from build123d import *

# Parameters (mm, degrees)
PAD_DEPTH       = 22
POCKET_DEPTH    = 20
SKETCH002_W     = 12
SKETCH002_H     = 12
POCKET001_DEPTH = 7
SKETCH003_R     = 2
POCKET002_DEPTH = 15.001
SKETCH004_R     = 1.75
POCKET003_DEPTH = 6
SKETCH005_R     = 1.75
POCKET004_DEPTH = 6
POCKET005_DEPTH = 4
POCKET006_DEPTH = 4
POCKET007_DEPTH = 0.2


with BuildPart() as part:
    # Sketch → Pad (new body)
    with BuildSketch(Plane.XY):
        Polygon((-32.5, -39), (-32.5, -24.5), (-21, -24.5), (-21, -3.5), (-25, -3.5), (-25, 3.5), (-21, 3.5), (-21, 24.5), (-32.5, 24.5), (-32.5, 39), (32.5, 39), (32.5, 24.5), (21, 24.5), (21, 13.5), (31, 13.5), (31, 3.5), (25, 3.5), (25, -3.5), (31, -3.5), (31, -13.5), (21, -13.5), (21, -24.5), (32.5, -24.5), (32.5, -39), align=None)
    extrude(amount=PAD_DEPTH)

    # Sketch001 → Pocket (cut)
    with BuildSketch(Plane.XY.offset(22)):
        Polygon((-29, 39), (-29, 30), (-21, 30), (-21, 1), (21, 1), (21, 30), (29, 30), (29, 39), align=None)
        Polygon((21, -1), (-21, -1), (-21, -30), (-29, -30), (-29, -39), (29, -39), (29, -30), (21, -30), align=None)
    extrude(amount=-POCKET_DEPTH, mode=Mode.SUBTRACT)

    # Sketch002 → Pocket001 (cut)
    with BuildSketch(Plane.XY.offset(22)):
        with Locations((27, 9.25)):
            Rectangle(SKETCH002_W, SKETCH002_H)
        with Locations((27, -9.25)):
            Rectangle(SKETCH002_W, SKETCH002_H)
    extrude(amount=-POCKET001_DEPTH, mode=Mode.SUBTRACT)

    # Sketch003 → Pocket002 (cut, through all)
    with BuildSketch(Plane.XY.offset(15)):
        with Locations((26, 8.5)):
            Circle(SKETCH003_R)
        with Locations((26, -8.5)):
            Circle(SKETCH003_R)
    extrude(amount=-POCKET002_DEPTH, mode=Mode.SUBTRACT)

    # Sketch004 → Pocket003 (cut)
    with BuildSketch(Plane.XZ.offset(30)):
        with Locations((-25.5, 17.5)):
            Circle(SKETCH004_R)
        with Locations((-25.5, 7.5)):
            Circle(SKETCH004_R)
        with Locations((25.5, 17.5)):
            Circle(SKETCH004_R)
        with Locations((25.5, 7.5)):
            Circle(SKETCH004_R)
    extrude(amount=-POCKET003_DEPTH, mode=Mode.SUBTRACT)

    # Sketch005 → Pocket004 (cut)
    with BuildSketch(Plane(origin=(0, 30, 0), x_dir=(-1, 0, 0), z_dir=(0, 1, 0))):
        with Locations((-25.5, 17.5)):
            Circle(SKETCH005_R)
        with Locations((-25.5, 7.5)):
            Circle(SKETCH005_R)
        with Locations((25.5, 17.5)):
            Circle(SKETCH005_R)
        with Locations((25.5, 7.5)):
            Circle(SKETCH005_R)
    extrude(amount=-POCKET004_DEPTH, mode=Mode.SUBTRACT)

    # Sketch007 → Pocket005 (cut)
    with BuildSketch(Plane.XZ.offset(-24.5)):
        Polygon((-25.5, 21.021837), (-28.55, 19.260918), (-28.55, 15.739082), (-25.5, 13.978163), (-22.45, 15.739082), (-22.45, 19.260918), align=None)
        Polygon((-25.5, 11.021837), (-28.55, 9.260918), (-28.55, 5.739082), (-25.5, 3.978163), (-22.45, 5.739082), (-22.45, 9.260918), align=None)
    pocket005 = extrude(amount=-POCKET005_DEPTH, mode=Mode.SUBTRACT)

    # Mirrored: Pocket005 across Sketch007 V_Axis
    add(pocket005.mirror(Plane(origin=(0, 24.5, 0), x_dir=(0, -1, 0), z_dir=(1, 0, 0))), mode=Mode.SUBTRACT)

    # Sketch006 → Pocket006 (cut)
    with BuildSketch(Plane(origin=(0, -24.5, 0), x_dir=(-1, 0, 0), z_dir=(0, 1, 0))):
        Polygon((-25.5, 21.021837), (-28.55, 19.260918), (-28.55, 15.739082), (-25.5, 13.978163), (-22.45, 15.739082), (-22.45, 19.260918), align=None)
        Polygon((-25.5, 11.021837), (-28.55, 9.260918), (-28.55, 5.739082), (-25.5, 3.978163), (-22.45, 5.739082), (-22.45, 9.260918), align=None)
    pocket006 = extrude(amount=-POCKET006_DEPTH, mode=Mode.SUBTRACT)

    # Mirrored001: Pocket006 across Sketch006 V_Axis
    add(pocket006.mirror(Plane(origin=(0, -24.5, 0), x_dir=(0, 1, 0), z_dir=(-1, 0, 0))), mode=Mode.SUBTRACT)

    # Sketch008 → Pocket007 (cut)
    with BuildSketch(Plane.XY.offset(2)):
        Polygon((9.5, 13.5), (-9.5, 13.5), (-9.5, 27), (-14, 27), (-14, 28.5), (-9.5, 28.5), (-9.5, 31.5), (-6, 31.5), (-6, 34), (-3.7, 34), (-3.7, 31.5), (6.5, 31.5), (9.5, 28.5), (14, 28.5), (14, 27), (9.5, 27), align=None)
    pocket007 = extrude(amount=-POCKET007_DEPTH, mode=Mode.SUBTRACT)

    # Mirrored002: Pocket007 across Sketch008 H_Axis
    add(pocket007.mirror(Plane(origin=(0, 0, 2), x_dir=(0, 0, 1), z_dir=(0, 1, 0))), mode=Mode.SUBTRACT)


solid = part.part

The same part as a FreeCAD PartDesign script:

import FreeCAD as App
import Part
import Sketcher

V = App.Vector
Q = App.Units.Quantity

doc = App.newDocument("Part")
body = doc.addObject("PartDesign::Body", "Body")

sketch1 = body.newObject("Sketcher::SketchObject", "Sketch")
sketch1.AttachmentSupport = (doc.getObject("XY_Plane"), [""])
sketch1.MapMode = "FlatFace"
sketch1.addGeometry([
    Part.LineSegment(V(-32.5, -24.5, 0), V(-32.5, -39, 0)),
    Part.LineSegment(V(-32.5, -39, 0), V(32.5, -39, 0)),
    Part.LineSegment(V(32.5, -39, 0), V(32.5, -24.5, 0)),
    Part.LineSegment(V(32.5, -24.5, 0), V(21, -24.5, 0)),
    Part.LineSegment(V(21, -24.5, 0), V(21, -13.5, 0)),
    Part.LineSegment(V(21, -13.5, 0), V(31, -13.5, 0)),
    Part.LineSegment(V(31, -13.5, 0), V(31, -3.5, 0)),
    Part.LineSegment(V(31, -3.5, 0), V(25, -3.5, 0)),
    Part.LineSegment(V(25, -3.5, 0), V(25, 3.5, 0)),
    Part.LineSegment(V(25, 3.5, 0), V(31, 3.5, 0)),
    Part.LineSegment(V(31, 3.5, 0), V(31, 13.5, 0)),
    Part.LineSegment(V(31, 13.5, 0), V(21, 13.5, 0)),
    Part.LineSegment(V(21, 13.5, 0), V(21, 24.5, 0)),
    Part.LineSegment(V(21, 24.5, 0), V(32.5, 24.5, 0)),
    Part.LineSegment(V(32.5, 24.5, 0), V(32.5, 39, 0)),
    Part.LineSegment(V(32.5, 39, 0), V(-32.5, 39, 0)),
    Part.LineSegment(V(-32.5, 39, 0), V(-32.5, 24.5, 0)),
    Part.LineSegment(V(-32.5, 24.5, 0), V(-21, 24.5, 0)),
    Part.LineSegment(V(-21, 24.5, 0), V(-21, 3.5, 0)),
    Part.LineSegment(V(-21, 3.5, 0), V(-25, 3.5, 0)),
    Part.LineSegment(V(-25, 3.5, 0), V(-25, -3.5, 0)),
    Part.LineSegment(V(-25, -3.5, 0), V(-21, -3.5, 0)),
    Part.LineSegment(V(-21, -3.5, 0), V(-21, -24.5, 0)),
    Part.LineSegment(V(-21, -24.5, 0), V(-32.5, -24.5, 0)),
], False)
sketch1.addConstraint([
    Sketcher.Constraint("Coincident", 0, 2, 1, 1),
    Sketcher.Constraint("Coincident", 1, 2, 2, 1),
    Sketcher.Constraint("Coincident", 2, 2, 3, 1),
    Sketcher.Constraint("Coincident", 3, 2, 4, 1),
    Sketcher.Constraint("Coincident", 4, 2, 5, 1),
    Sketcher.Constraint("Coincident", 5, 2, 6, 1),
    Sketcher.Constraint("Coincident", 6, 2, 7, 1),
    Sketcher.Constraint("Coincident", 7, 2, 8, 1),
    Sketcher.Constraint("Coincident", 8, 2, 9, 1),
    Sketcher.Constraint("Coincident", 9, 2, 10, 1),
    Sketcher.Constraint("Coincident", 10, 2, 11, 1),
    Sketcher.Constraint("Coincident", 11, 2, 12, 1),
    Sketcher.Constraint("Coincident", 12, 2, 13, 1),
    Sketcher.Constraint("Coincident", 13, 2, 14, 1),
    Sketcher.Constraint("Coincident", 14, 2, 15, 1),
    Sketcher.Constraint("Coincident", 15, 2, 16, 1),
    Sketcher.Constraint("Coincident", 16, 2, 17, 1),
    Sketcher.Constraint("Coincident", 17, 2, 18, 1),
    Sketcher.Constraint("Coincident", 18, 2, 19, 1),
    Sketcher.Constraint("Coincident", 19, 2, 20, 1),
    Sketcher.Constraint("Coincident", 20, 2, 21, 1),
    Sketcher.Constraint("Coincident", 21, 2, 22, 1),
    Sketcher.Constraint("Coincident", 22, 2, 23, 1),
    Sketcher.Constraint("Coincident", 23, 2, 0, 1),
    Sketcher.Constraint("Vertical", 0),
    Sketcher.Constraint("Horizontal", 1),
    Sketcher.Constraint("Vertical", 2),
    Sketcher.Constraint("Horizontal", 3),
    Sketcher.Constraint("Vertical", 4),
    Sketcher.Constraint("Horizontal", 5),
    Sketcher.Constraint("Vertical", 6),
    Sketcher.Constraint("Horizontal", 7),
    Sketcher.Constraint("Vertical", 8),
    Sketcher.Constraint("Horizontal", 9),
    Sketcher.Constraint("Vertical", 10),
    Sketcher.Constraint("Horizontal", 11),
    Sketcher.Constraint("Vertical", 12),
    Sketcher.Constraint("Horizontal", 13),
    Sketcher.Constraint("Vertical", 14),
    Sketcher.Constraint("Horizontal", 15),
    Sketcher.Constraint("Vertical", 16),
    Sketcher.Constraint("Horizontal", 17),
    Sketcher.Constraint("Vertical", 18),
    Sketcher.Constraint("Horizontal", 19),
    Sketcher.Constraint("Vertical", 20),
    Sketcher.Constraint("Horizontal", 21),
    Sketcher.Constraint("Vertical", 22),
    Sketcher.Constraint("Horizontal", 23),
    Sketcher.Constraint("Symmetric", 0, 2, 14, 2, -1, 1),
    Sketcher.Constraint("Symmetric", 2, 2, 16, 2, -1, 1),
    Sketcher.Constraint("Symmetric", 7, 2, 19, 2, -1, 1),
    Sketcher.Constraint("Symmetric", 12, 2, 22, 2, -1, 1),
    Sketcher.Constraint("Symmetric", 13, 2, 16, 2, -2),
    Sketcher.Constraint("Symmetric", 6, 2, 9, 2, -1),
    Sketcher.Constraint("Symmetric", 4, 2, 11, 2, -1),
    Sketcher.Constraint("Symmetric", 18, 2, 21, 2, -1),
    Sketcher.Constraint("Equal", 11, 6),
    Sketcher.Constraint("DistanceX", 1, 1, 1, 2, Q("65 mm")),
    Sketcher.Constraint("DistanceX", 5, 1, 5, 2, Q("10 mm")),
    Sketcher.Constraint("DistanceX", 7, 2, 7, 1, Q("6 mm")),
    Sketcher.Constraint("DistanceY", 4, 1, 4, 2, Q("11 mm")),
    Sketcher.Constraint("DistanceY", 8, 1, 8, 2, Q("7 mm")),
    Sketcher.Constraint("DistanceX", 3, 2, 3, 1, Q("11.5 mm")),
    Sketcher.Constraint("DistanceY", 0, 2, 0, 1, Q("14.5 mm")),
])
pad1 = body.newObject("PartDesign::Pad", "Pad")
pad1.Profile = sketch1
pad1.Length = 22

sketch2 = body.newObject("Sketcher::SketchObject", "Sketch001")
sketch2.AttachmentSupport = (doc.getObject("XY_Plane"), [""])
sketch2.MapMode = "FlatFace"
sketch2.AttachmentOffset = App.Placement(V(0, 0, 22), App.Rotation())
sketch2.addGeometry([
    Part.LineSegment(V(-29, 39, 0), V(-29, 30, 0)),
    Part.LineSegment(V(-29, 30, 0), V(-21, 30, 0)),
    Part.LineSegment(V(-21, 30, 0), V(-21, 1, 0)),
    Part.LineSegment(V(-21, 1, 0), V(21, 1, 0)),
    Part.LineSegment(V(21, 1, 0), V(21, 30, 0)),
    Part.LineSegment(V(21, 30, 0), V(29, 30, 0)),
    Part.LineSegment(V(29, 30, 0), V(29, 39, 0)),
    Part.LineSegment(V(29, 39, 0), V(-29, 39, 0)),
    Part.LineSegment(V(21, -1, 0), V(-21, -1, 0)),
    Part.LineSegment(V(-21, -1, 0), V(-21, -30, 0)),
    Part.LineSegment(V(-21, -30, 0), V(-29, -30, 0)),
    Part.LineSegment(V(-29, -30, 0), V(-29, -39, 0)),
    Part.LineSegment(V(-29, -39, 0), V(29, -39, 0)),
    Part.LineSegment(V(29, -39, 0), V(29, -30, 0)),
    Part.LineSegment(V(29, -30, 0), V(21, -30, 0)),
    Part.LineSegment(V(21, -30, 0), V(21, -1, 0)),
], False)
sketch2.addConstraint([
    Sketcher.Constraint("Coincident", 0, 2, 1, 1),
    Sketcher.Constraint("Coincident", 1, 2, 2, 1),
    Sketcher.Constraint("Coincident", 2, 2, 3, 1),
    Sketcher.Constraint("Coincident", 3, 2, 4, 1),
    Sketcher.Constraint("Coincident", 4, 2, 5, 1),
    Sketcher.Constraint("Coincident", 5, 2, 6, 1),
    Sketcher.Constraint("Coincident", 6, 2, 7, 1),
    Sketcher.Constraint("Coincident", 7, 2, 0, 1),
    Sketcher.Constraint("Coincident", 8, 2, 9, 1),
    Sketcher.Constraint("Coincident", 9, 2, 10, 1),
    Sketcher.Constraint("Coincident", 10, 2, 11, 1),
    Sketcher.Constraint("Coincident", 11, 2, 12, 1),
    Sketcher.Constraint("Coincident", 12, 2, 13, 1),
    Sketcher.Constraint("Coincident", 13, 2, 14, 1),
    Sketcher.Constraint("Coincident", 14, 2, 15, 1),
    Sketcher.Constraint("Coincident", 15, 2, 8, 1),
    Sketcher.Constraint("Vertical", 0),
    Sketcher.Constraint("Horizontal", 1),
    Sketcher.Constraint("Vertical", 2),
    Sketcher.Constraint("Horizontal", 3),
    Sketcher.Constraint("Vertical", 4),
    Sketcher.Constraint("Horizontal", 5),
    Sketcher.Constraint("Vertical", 6),
    Sketcher.Constraint("Horizontal", 7),
    Sketcher.Constraint("Horizontal", 8),
    Sketcher.Constraint("Vertical", 9),
    Sketcher.Constraint("Horizontal", 10),
    Sketcher.Constraint("Vertical", 11),
    Sketcher.Constraint("Horizontal", 12),
    Sketcher.Constraint("Vertical", 13),
    Sketcher.Constraint("Horizontal", 14),
    Sketcher.Constraint("Vertical", 15),
    Sketcher.Constraint("Symmetric", 3, 2, 8, 2, -1, 1),
    Sketcher.Constraint("Symmetric", 5, 2, 10, 2, -1, 1),
    Sketcher.Constraint("Symmetric", 7, 2, 12, 2, -1, 1),
    Sketcher.Constraint("Symmetric", 1, 2, 14, 2, -1, 1),
    Sketcher.Constraint("Symmetric", 1, 2, 4, 2, -2),
    Sketcher.Constraint("Vertical", 7, 2, 10, 2),
    Sketcher.Constraint("DistanceX", 1, 1, 1, 2, Q("8 mm")),
    Sketcher.Constraint("DistanceX", 3, 1, 3, 2, Q("42 mm")),
    Sketcher.Constraint("DistanceY", 0, 2, 0, 1, Q("9 mm")),
    Sketcher.Constraint("DistanceY", 2, 2, 2, 1, Q("29 mm")),
    Sketcher.Constraint("DistanceY", -1, 1, 0, 2, Q("30 mm")),
])
pocket1 = body.newObject("PartDesign::Pocket", "Pocket")
pocket1.Profile = sketch2
pocket1.Length = 20

sketch3 = body.newObject("Sketcher::SketchObject", "Sketch002")
sketch3.AttachmentSupport = (doc.getObject("XY_Plane"), [""])
sketch3.MapMode = "FlatFace"
sketch3.AttachmentOffset = App.Placement(V(0, 0, 22), App.Rotation())
sketch3.addGeometry([
    Part.LineSegment(V(21, 15, 0), V(21, 3, 0)),
    Part.LineSegment(V(21, 3, 0), V(33, 3, 0)),
    Part.LineSegment(V(33, 3, 0), V(33, 15, 0)),
    Part.LineSegment(V(33, 15, 0), V(21, 15, 0)),
    Part.LineSegment(V(21, -3, 0), V(21, -15, 0)),
    Part.LineSegment(V(21, -15, 0), V(33, -15, 0)),
    Part.LineSegment(V(33, -15, 0), V(33, -3, 0)),
    Part.LineSegment(V(33, -3, 0), V(21, -3, 0)),
], False)
sketch3.addConstraint([
    Sketcher.Constraint("Coincident", 0, 2, 1, 1),
    Sketcher.Constraint("Coincident", 1, 2, 2, 1),
    Sketcher.Constraint("Coincident", 2, 2, 3, 1),
    Sketcher.Constraint("Coincident", 3, 2, 0, 1),
    Sketcher.Constraint("Coincident", 4, 2, 5, 1),
    Sketcher.Constraint("Coincident", 5, 2, 6, 1),
    Sketcher.Constraint("Coincident", 6, 2, 7, 1),
    Sketcher.Constraint("Coincident", 7, 2, 4, 1),
    Sketcher.Constraint("Vertical", 0),
    Sketcher.Constraint("Horizontal", 1),
    Sketcher.Constraint("Vertical", 2),
    Sketcher.Constraint("Horizontal", 3),
    Sketcher.Constraint("Vertical", 4),
    Sketcher.Constraint("Horizontal", 5),
    Sketcher.Constraint("Vertical", 6),
    Sketcher.Constraint("Horizontal", 7),
    Sketcher.Constraint("Symmetric", 3, 2, 4, 2, -1),
    Sketcher.Constraint("Symmetric", 1, 2, 6, 2, -1),
    Sketcher.Constraint("Equal", 7, 0),
    Sketcher.Constraint("DistanceX", 1, 1, 1, 2, Q("12 mm")),
    Sketcher.Constraint("DistanceX", -1, 1, 0, 2, Q("21 mm")),
    Sketcher.Constraint("DistanceY", 4, 2, 0, 2, Q("18.5 mm")),
])
pocket2 = body.newObject("PartDesign::Pocket", "Pocket001")
pocket2.Profile = sketch3
pocket2.Length = 7

sketch4 = body.newObject("Sketcher::SketchObject", "Sketch003")
sketch4.AttachmentSupport = (doc.getObject("XY_Plane"), [""])
sketch4.MapMode = "FlatFace"
sketch4.AttachmentOffset = App.Placement(V(0, 0, 15), App.Rotation())
sketch4.addGeometry([
    Part.Circle(V(26, 8.5, 0), V(0, 0, 1), 2),
    Part.Circle(V(26, -8.5, 0), V(0, 0, 1), 2),
], False)
sketch4.addConstraint([
    Sketcher.Constraint("Equal", 0, 1),
    Sketcher.Constraint("Symmetric", 0, 3, 1, 3, -1),
    Sketcher.Constraint("Diameter", 0, Q("4 mm")),
    Sketcher.Constraint("DistanceX", -1, 1, 0, 3, Q("26 mm")),
    Sketcher.Constraint("DistanceY", 1, 3, 0, 3, Q("17 mm")),
])
pocket3 = body.newObject("PartDesign::Pocket", "Pocket002")
pocket3.Profile = sketch4
pocket3.Type = "ThroughAll"

sketch5 = body.newObject("Sketcher::SketchObject", "Sketch004")
sketch5.AttachmentSupport = (doc.getObject("XZ_Plane"), [""])
sketch5.MapMode = "FlatFace"
sketch5.AttachmentOffset = App.Placement(V(0, 0, 30), App.Rotation())
sketch5.addGeometry([
    Part.Circle(V(-25.5, 17.5, 0), V(0, 0, 1), 1.8),
    Part.Circle(V(-25.5, 7.5, 0), V(0, 0, 1), 1.8),
    Part.Circle(V(25.5, 17.5, 0), V(0, 0, 1), 1.8),
    Part.Circle(V(25.5, 7.5, 0), V(0, 0, 1), 1.8),
], False)
sketch5.addConstraint([
    Sketcher.Constraint("Equal", 0, 1),
    Sketcher.Constraint("Equal", 1, 2),
    Sketcher.Constraint("Equal", 2, 3),
    Sketcher.Constraint("Symmetric", 0, 3, 2, 3, -2),
    Sketcher.Constraint("Symmetric", 1, 3, 3, 3, -2),
    Sketcher.Constraint("Vertical", 0, 3, 1, 3),
    Sketcher.Constraint("Diameter", 0, Q("3.5 mm")),
    Sketcher.Constraint("DistanceY", 1, 3, 0, 3, Q("10 mm")),
    Sketcher.Constraint("DistanceX", 0, 3, 2, 3, Q("51 mm")),
    Sketcher.Constraint("DistanceY", -1, 1, 0, 3, Q("17.5 mm")),
])
pocket4 = body.newObject("PartDesign::Pocket", "Pocket003")
pocket4.Profile = sketch5
pocket4.Length = 6

sketch6 = body.newObject("Sketcher::SketchObject", "Sketch005")
sketch6.AttachmentSupport = (doc.getObject("XZ_Plane"), [""])
sketch6.MapMode = "FlatFace"
sketch6.AttachmentOffset = App.Placement(V(0, 0, -30), App.Rotation())
sketch6.addGeometry([
    Part.Circle(V(25.5, 17.5, 0), V(0, 0, 1), 1.8),
    Part.Circle(V(25.5, 7.5, 0), V(0, 0, 1), 1.8),
    Part.Circle(V(-25.5, 17.5, 0), V(0, 0, 1), 1.8),
    Part.Circle(V(-25.5, 7.5, 0), V(0, 0, 1), 1.8),
], False)
sketch6.addConstraint([
    Sketcher.Constraint("Equal", 0, 1),
    Sketcher.Constraint("Equal", 1, 2),
    Sketcher.Constraint("Equal", 2, 3),
    Sketcher.Constraint("Symmetric", 0, 3, 2, 3, -2),
    Sketcher.Constraint("Symmetric", 1, 3, 3, 3, -2),
    Sketcher.Constraint("Vertical", 0, 3, 1, 3),
    Sketcher.Constraint("Diameter", 0, Q("3.5 mm")),
    Sketcher.Constraint("DistanceY", 1, 3, 0, 3, Q("10 mm")),
    Sketcher.Constraint("DistanceX", 2, 3, 0, 3, Q("51 mm")),
    Sketcher.Constraint("DistanceY", -1, 1, 0, 3, Q("17.5 mm")),
])
pocket5 = body.newObject("PartDesign::Pocket", "Pocket004")
pocket5.Profile = sketch6
pocket5.Length = 6
pocket5.Reversed = True

sketch7 = body.newObject("Sketcher::SketchObject", "Sketch006")
sketch7.AttachmentSupport = (doc.getObject("XZ_Plane"), [""])
sketch7.MapMode = "FlatFace"
sketch7.AttachmentOffset = App.Placement(V(0, 0, -24.5), App.Rotation())
sketch7.addGeometry([
    Part.LineSegment(V(-25.5, 21, 0), V(-28.6, 19.3, 0)),
    Part.LineSegment(V(-28.6, 19.3, 0), V(-28.6, 15.7, 0)),
    Part.LineSegment(V(-28.6, 15.7, 0), V(-25.5, 14, 0)),
    Part.LineSegment(V(-25.5, 14, 0), V(-22.4, 15.7, 0)),
    Part.LineSegment(V(-22.4, 15.7, 0), V(-22.4, 19.3, 0)),
    Part.LineSegment(V(-22.4, 19.3, 0), V(-25.5, 21, 0)),
    Part.LineSegment(V(-25.5, 11, 0), V(-28.6, 9.3, 0)),
    Part.LineSegment(V(-28.6, 9.3, 0), V(-28.6, 5.7, 0)),
    Part.LineSegment(V(-28.6, 5.7, 0), V(-25.5, 4, 0)),
    Part.LineSegment(V(-25.5, 4, 0), V(-22.4, 5.7, 0)),
    Part.LineSegment(V(-22.4, 5.7, 0), V(-22.4, 9.3, 0)),
    Part.LineSegment(V(-22.4, 9.3, 0), V(-25.5, 11, 0)),
], False)
sketch7.addConstraint([
    Sketcher.Constraint("Coincident", 0, 2, 1, 1),
    Sketcher.Constraint("Coincident", 1, 2, 2, 1),
    Sketcher.Constraint("Coincident", 2, 2, 3, 1),
    Sketcher.Constraint("Coincident", 3, 2, 4, 1),
    Sketcher.Constraint("Coincident", 4, 2, 5, 1),
    Sketcher.Constraint("Coincident", 5, 2, 0, 1),
    Sketcher.Constraint("Coincident", 6, 2, 7, 1),
    Sketcher.Constraint("Coincident", 7, 2, 8, 1),
    Sketcher.Constraint("Coincident", 8, 2, 9, 1),
    Sketcher.Constraint("Coincident", 9, 2, 10, 1),
    Sketcher.Constraint("Coincident", 10, 2, 11, 1),
    Sketcher.Constraint("Coincident", 11, 2, 6, 1),
    Sketcher.Constraint("Vertical", 1),
    Sketcher.Constraint("Vertical", 4),
    Sketcher.Constraint("Vertical", 7),
    Sketcher.Constraint("Vertical", 10),
    Sketcher.Constraint("Parallel", 0, 3),
    Sketcher.Constraint("Parallel", 2, 5),
    Sketcher.Constraint("Parallel", 3, 6),
    Sketcher.Constraint("Parallel", 5, 8),
    Sketcher.Constraint("Parallel", 6, 9),
    Sketcher.Constraint("Parallel", 8, 11),
    Sketcher.Constraint("Horizontal", 1, 2, 3, 2),
    Sketcher.Constraint("Horizontal", 0, 2, 4, 2),
    Sketcher.Constraint("Horizontal", 7, 2, 9, 2),
    Sketcher.Constraint("Horizontal", 6, 2, 10, 2),
    Sketcher.Constraint("Vertical", 2, 2, 5, 2),
    Sketcher.Constraint("Vertical", 1, 2, 6, 2),
    Sketcher.Constraint("Vertical", 5, 2, 8, 2),
    Sketcher.Constraint("Equal", 4, 7),
    Sketcher.Constraint("Angle", 0, Q("-149.99999 deg")),
    Sketcher.Constraint("DistanceY", 6, 2, 0, 2, Q("10 mm")),
    Sketcher.Constraint("DistanceX", 2, 2, -1, 1, Q("25.5 mm")),
    Sketcher.Constraint("DistanceX", 1, 2, 3, 2, Q("6.1 mm")),
    Sketcher.Constraint("DistanceY", 1, 2, 1, 1, Q("3.521836 mm")),
    Sketcher.Constraint("DistanceY", -1, 1, 0, 2, Q("19.260918 mm")),
])
pocket6 = body.newObject("PartDesign::Pocket", "Pocket005")
pocket6.Profile = sketch7
pocket6.Length = 4
doc.recompute()

mirrored = body.newObject("PartDesign::Mirrored", "Mirrored")
mirrored.Originals = [pocket6]
mirrored.MirrorPlane = (doc.getObject("YZ_Plane"), [""])
body.Tip = mirrored

sketch8 = body.newObject("Sketcher::SketchObject", "Sketch007")
sketch8.AttachmentSupport = (doc.getObject("XZ_Plane"), [""])
sketch8.MapMode = "FlatFace"
sketch8.AttachmentOffset = App.Placement(V(0, 0, 24.5), App.Rotation())
sketch8.addGeometry([
    Part.LineSegment(V(25.5, 21, 0), V(28.6, 19.3, 0)),
    Part.LineSegment(V(28.6, 19.3, 0), V(28.6, 15.7, 0)),
    Part.LineSegment(V(28.6, 15.7, 0), V(25.5, 14, 0)),
    Part.LineSegment(V(25.5, 14, 0), V(22.4, 15.7, 0)),
    Part.LineSegment(V(22.4, 15.7, 0), V(22.4, 19.3, 0)),
    Part.LineSegment(V(22.4, 19.3, 0), V(25.5, 21, 0)),
    Part.LineSegment(V(25.5, 11, 0), V(28.6, 9.3, 0)),
    Part.LineSegment(V(28.6, 9.3, 0), V(28.6, 5.7, 0)),
    Part.LineSegment(V(28.6, 5.7, 0), V(25.5, 4, 0)),
    Part.LineSegment(V(25.5, 4, 0), V(22.4, 5.7, 0)),
    Part.LineSegment(V(22.4, 5.7, 0), V(22.4, 9.3, 0)),
    Part.LineSegment(V(22.4, 9.3, 0), V(25.5, 11, 0)),
], False)
sketch8.addConstraint([
    Sketcher.Constraint("Coincident", 0, 2, 1, 1),
    Sketcher.Constraint("Coincident", 1, 2, 2, 1),
    Sketcher.Constraint("Coincident", 2, 2, 3, 1),
    Sketcher.Constraint("Coincident", 3, 2, 4, 1),
    Sketcher.Constraint("Coincident", 4, 2, 5, 1),
    Sketcher.Constraint("Coincident", 5, 2, 0, 1),
    Sketcher.Constraint("Coincident", 6, 2, 7, 1),
    Sketcher.Constraint("Coincident", 7, 2, 8, 1),
    Sketcher.Constraint("Coincident", 8, 2, 9, 1),
    Sketcher.Constraint("Coincident", 9, 2, 10, 1),
    Sketcher.Constraint("Coincident", 10, 2, 11, 1),
    Sketcher.Constraint("Coincident", 11, 2, 6, 1),
    Sketcher.Constraint("Vertical", 1),
    Sketcher.Constraint("Vertical", 4),
    Sketcher.Constraint("Vertical", 7),
    Sketcher.Constraint("Vertical", 10),
    Sketcher.Constraint("Parallel", 0, 3),
    Sketcher.Constraint("Parallel", 2, 5),
    Sketcher.Constraint("Parallel", 3, 6),
    Sketcher.Constraint("Parallel", 5, 8),
    Sketcher.Constraint("Parallel", 6, 9),
    Sketcher.Constraint("Parallel", 8, 11),
    Sketcher.Constraint("Horizontal", 1, 2, 3, 2),
    Sketcher.Constraint("Horizontal", 0, 2, 4, 2),
    Sketcher.Constraint("Horizontal", 7, 2, 9, 2),
    Sketcher.Constraint("Horizontal", 6, 2, 10, 2),
    Sketcher.Constraint("Vertical", 2, 2, 5, 2),
    Sketcher.Constraint("Vertical", 1, 2, 6, 2),
    Sketcher.Constraint("Vertical", 5, 2, 8, 2),
    Sketcher.Constraint("Equal", 4, 7),
    Sketcher.Constraint("Angle", 0, Q("-30.00001 deg")),
    Sketcher.Constraint("DistanceY", 6, 2, 0, 2, Q("10 mm")),
    Sketcher.Constraint("DistanceX", -1, 1, 2, 2, Q("25.5 mm")),
    Sketcher.Constraint("DistanceX", 3, 2, 1, 2, Q("6.1 mm")),
    Sketcher.Constraint("DistanceY", 1, 2, 1, 1, Q("3.521836 mm")),
    Sketcher.Constraint("DistanceY", -1, 1, 0, 2, Q("19.260918 mm")),
])
pocket7 = body.newObject("PartDesign::Pocket", "Pocket006")
pocket7.Profile = sketch8
pocket7.Length = 4
pocket7.Reversed = True
doc.recompute()

mirrored2 = body.newObject("PartDesign::Mirrored", "Mirrored001")
mirrored2.Originals = [pocket7]
mirrored2.MirrorPlane = (doc.getObject("YZ_Plane"), [""])
body.Tip = mirrored2

sketch9 = body.newObject("Sketcher::SketchObject", "Sketch008")
sketch9.AttachmentSupport = (doc.getObject("XY_Plane"), [""])
sketch9.MapMode = "FlatFace"
sketch9.AttachmentOffset = App.Placement(V(0, 0, 2), App.Rotation())
sketch9.addGeometry([
    Part.LineSegment(V(-9.5, 13.5, 0), V(9.5, 13.5, 0)),
    Part.LineSegment(V(9.5, 13.5, 0), V(9.5, 27, 0)),
    Part.LineSegment(V(9.5, 27, 0), V(14, 27, 0)),
    Part.LineSegment(V(14, 27, 0), V(14, 28.5, 0)),
    Part.LineSegment(V(14, 28.5, 0), V(9.5, 28.5, 0)),
    Part.LineSegment(V(9.5, 28.5, 0), V(6.5, 31.5, 0)),
    Part.LineSegment(V(6.5, 31.5, 0), V(-3.7, 31.5, 0)),
    Part.LineSegment(V(-3.7, 31.5, 0), V(-3.7, 34, 0)),
    Part.LineSegment(V(-3.7, 34, 0), V(-6, 34, 0)),
    Part.LineSegment(V(-6, 34, 0), V(-6, 31.5, 0)),
    Part.LineSegment(V(-6, 31.5, 0), V(-9.5, 31.5, 0)),
    Part.LineSegment(V(-9.5, 31.5, 0), V(-9.5, 28.5, 0)),
    Part.LineSegment(V(-9.5, 28.5, 0), V(-14, 28.5, 0)),
    Part.LineSegment(V(-14, 28.5, 0), V(-14, 27, 0)),
    Part.LineSegment(V(-14, 27, 0), V(-9.5, 27, 0)),
    Part.LineSegment(V(-9.5, 27, 0), V(-9.5, 13.5, 0)),
], False)
sketch9.addConstraint([
    Sketcher.Constraint("Coincident", 0, 2, 1, 1),
    Sketcher.Constraint("Coincident", 1, 2, 2, 1),
    Sketcher.Constraint("Coincident", 2, 2, 3, 1),
    Sketcher.Constraint("Coincident", 3, 2, 4, 1),
    Sketcher.Constraint("Coincident", 4, 2, 5, 1),
    Sketcher.Constraint("Coincident", 5, 2, 6, 1),
    Sketcher.Constraint("Coincident", 6, 2, 7, 1),
    Sketcher.Constraint("Coincident", 7, 2, 8, 1),
    Sketcher.Constraint("Coincident", 8, 2, 9, 1),
    Sketcher.Constraint("Coincident", 9, 2, 10, 1),
    Sketcher.Constraint("Coincident", 10, 2, 11, 1),
    Sketcher.Constraint("Coincident", 11, 2, 12, 1),
    Sketcher.Constraint("Coincident", 12, 2, 13, 1),
    Sketcher.Constraint("Coincident", 13, 2, 14, 1),
    Sketcher.Constraint("Coincident", 14, 2, 15, 1),
    Sketcher.Constraint("Coincident", 15, 2, 0, 1),
    Sketcher.Constraint("Horizontal", 0),
    Sketcher.Constraint("Vertical", 1),
    Sketcher.Constraint("Horizontal", 2),
    Sketcher.Constraint("Vertical", 3),
    Sketcher.Constraint("Horizontal", 4),
    Sketcher.Constraint("Horizontal", 6),
    Sketcher.Constraint("Vertical", 7),
    Sketcher.Constraint("Horizontal", 8),
    Sketcher.Constraint("Vertical", 9),
    Sketcher.Constraint("Horizontal", 10),
    Sketcher.Constraint("Vertical", 11),
    Sketcher.Constraint("Horizontal", 12),
    Sketcher.Constraint("Vertical", 13),
    Sketcher.Constraint("Horizontal", 14),
    Sketcher.Constraint("Vertical", 15),
    Sketcher.Constraint("Symmetric", 4, 2, 11, 2, -2),
    Sketcher.Constraint("Symmetric", 2, 2, 13, 2, -2),
    Sketcher.Constraint("Horizontal", 6, 2, 9, 2),
    Sketcher.Constraint("Vertical", 1, 2, 4, 2),
    Sketcher.Constraint("Vertical", 11, 2, 14, 2),
    Sketcher.Constraint("DistanceX", 0, 1, 0, 2, Q("19 mm")),
    Sketcher.Constraint("DistanceY", 11, 2, 11, 1, Q("3 mm")),
    Sketcher.Constraint("Angle", 5, Q("135 deg")),
    Sketcher.Constraint("DistanceX", 2, 1, 2, 2, Q("4.5 mm")),
    Sketcher.Constraint("DistanceX", 6, 2, 6, 1, Q("10.2 mm")),
    Sketcher.Constraint("DistanceX", 8, 2, 8, 1, Q("2.3 mm")),
    Sketcher.Constraint("DistanceY", 1, 1, 1, 2, Q("13.5 mm")),
    Sketcher.Constraint("DistanceY", 3, 1, 3, 2, Q("1.5 mm")),
    Sketcher.Constraint("DistanceY", 7, 1, 7, 2, Q("2.5 mm")),
    Sketcher.Constraint("DistanceY", -1, 1, 1, 2, Q("27 mm")),
])
pocket8 = body.newObject("PartDesign::Pocket", "Pocket007")
pocket8.Profile = sketch9
pocket8.Length = 0.2
doc.recompute()

mirrored3 = body.newObject("PartDesign::Mirrored", "Mirrored002")
mirrored3.Originals = [pocket8]
mirrored3.MirrorPlane = (doc.getObject("XZ_Plane"), [""])
body.Tip = mirrored3

doc.recompute()
